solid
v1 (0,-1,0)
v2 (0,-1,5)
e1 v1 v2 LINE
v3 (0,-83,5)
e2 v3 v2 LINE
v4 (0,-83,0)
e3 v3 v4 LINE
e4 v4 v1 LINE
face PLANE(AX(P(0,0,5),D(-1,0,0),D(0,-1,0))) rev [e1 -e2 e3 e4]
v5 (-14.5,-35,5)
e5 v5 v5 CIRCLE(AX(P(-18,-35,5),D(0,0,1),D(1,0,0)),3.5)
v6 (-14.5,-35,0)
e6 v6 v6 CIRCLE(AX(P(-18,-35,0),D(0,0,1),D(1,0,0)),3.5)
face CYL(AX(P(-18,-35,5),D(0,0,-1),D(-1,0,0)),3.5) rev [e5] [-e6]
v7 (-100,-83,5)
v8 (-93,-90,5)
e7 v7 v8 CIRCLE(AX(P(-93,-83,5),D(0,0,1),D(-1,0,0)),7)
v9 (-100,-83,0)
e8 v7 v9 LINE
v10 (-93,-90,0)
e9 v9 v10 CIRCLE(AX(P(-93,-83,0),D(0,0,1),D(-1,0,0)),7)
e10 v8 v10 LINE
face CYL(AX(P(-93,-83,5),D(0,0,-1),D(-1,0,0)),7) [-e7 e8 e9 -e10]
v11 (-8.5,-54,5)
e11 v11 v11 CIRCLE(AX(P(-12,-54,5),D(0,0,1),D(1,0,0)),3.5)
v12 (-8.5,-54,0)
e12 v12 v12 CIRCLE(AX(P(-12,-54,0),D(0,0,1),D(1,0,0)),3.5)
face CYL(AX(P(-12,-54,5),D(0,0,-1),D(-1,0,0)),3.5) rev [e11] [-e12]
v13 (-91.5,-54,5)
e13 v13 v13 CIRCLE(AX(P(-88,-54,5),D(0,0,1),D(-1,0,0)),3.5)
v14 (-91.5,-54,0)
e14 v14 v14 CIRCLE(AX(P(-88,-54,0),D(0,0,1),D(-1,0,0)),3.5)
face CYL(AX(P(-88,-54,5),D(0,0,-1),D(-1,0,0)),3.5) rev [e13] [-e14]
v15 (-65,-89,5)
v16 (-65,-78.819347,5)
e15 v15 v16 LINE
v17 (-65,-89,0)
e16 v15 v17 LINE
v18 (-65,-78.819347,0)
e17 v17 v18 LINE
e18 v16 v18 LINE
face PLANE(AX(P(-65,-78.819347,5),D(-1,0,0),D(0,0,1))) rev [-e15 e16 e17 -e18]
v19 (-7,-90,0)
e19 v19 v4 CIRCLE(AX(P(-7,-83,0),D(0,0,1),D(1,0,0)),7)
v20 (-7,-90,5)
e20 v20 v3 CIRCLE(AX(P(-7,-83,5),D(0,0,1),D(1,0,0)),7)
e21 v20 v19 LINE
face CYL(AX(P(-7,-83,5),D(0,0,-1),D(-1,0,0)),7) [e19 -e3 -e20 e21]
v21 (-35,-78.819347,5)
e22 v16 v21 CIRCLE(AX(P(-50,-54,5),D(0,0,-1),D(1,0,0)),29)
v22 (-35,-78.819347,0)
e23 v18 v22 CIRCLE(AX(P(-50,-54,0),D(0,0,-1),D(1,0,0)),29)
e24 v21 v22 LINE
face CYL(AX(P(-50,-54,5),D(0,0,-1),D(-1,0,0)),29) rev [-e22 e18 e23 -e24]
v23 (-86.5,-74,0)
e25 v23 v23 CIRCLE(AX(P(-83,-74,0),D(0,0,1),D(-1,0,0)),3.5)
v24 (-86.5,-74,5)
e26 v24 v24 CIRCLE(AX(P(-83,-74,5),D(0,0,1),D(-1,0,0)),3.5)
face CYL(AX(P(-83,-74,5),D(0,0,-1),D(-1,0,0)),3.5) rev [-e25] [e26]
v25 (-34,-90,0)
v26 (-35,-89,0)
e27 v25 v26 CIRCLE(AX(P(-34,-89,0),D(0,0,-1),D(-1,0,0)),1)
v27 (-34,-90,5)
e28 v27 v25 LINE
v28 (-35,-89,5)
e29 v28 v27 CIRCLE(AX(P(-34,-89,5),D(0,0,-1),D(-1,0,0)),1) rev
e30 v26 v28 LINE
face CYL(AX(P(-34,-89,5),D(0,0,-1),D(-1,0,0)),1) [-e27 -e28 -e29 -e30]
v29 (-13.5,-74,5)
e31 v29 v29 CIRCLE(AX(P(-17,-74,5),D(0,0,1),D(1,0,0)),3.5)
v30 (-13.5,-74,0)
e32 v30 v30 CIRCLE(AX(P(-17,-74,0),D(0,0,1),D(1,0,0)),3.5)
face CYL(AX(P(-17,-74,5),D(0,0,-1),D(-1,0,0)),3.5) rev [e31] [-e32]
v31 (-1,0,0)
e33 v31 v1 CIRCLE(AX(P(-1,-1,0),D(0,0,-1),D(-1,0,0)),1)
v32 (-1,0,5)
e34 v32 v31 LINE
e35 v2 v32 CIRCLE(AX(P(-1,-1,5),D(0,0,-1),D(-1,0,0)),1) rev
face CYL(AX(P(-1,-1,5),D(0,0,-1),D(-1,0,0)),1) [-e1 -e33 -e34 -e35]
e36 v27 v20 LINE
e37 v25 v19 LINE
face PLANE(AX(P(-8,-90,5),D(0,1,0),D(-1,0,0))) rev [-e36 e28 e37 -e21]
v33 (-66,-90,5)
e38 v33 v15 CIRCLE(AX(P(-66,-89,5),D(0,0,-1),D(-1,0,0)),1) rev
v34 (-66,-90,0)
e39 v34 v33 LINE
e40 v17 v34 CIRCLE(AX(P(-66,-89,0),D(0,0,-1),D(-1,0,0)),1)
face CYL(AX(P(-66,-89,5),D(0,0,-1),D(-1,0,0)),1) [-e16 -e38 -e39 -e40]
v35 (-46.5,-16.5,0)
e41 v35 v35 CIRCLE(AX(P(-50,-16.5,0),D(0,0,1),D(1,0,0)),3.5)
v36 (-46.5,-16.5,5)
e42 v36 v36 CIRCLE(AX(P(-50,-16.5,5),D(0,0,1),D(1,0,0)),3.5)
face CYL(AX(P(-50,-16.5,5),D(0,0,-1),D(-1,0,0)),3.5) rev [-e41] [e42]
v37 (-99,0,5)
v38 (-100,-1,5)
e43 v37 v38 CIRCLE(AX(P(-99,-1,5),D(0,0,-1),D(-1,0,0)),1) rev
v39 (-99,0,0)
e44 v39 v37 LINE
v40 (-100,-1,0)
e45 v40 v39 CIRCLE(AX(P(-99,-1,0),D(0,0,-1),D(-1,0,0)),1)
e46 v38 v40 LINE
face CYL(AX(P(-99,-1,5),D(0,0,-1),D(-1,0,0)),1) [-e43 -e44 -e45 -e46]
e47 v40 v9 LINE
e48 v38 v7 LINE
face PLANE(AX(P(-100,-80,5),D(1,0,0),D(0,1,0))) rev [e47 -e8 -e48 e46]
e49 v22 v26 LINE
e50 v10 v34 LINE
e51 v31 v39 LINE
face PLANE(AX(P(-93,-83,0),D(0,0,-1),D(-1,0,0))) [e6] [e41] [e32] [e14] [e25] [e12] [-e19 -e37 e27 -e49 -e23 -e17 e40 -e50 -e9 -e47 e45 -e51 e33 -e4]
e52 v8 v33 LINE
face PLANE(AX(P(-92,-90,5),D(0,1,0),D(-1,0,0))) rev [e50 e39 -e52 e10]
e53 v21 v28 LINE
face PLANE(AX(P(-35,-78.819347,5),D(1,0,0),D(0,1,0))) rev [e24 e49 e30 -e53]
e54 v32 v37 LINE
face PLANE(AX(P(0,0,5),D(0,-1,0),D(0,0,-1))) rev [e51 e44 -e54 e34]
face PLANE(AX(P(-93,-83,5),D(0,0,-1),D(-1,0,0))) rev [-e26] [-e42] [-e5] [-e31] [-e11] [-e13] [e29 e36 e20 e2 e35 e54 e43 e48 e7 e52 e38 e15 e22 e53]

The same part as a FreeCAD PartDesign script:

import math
import FreeCAD as App
import Part
import Sketcher

V = App.Vector
Q = App.Units.Quantity


def edges_at(feature, points):
    """Names of the edges that pass closest to the given points."""
    edges = feature.Shape.Edges
    near = lambda p: min(range(len(edges)), key=lambda i: edges[i].distToShape(Part.Vertex(*p))[0])
    return sorted({f"Edge{near(p) + 1}" for p in points})

doc = App.newDocument("Part")
body = doc.addObject("PartDesign::Body", "Body")

# Sketch on XY plane
sketch1 = body.newObject("Sketcher::SketchObject", "Sketch")
sketch1.AttachmentSupport = (doc.getObject("XY_Plane"), [""])
sketch1.MapMode = "FlatFace"
sketch1.addGeometry([
    Part.LineSegment(V(0, 0, 0), V(-100, 0, 0)),  # 0
    Part.LineSegment(V(-100, 0, 0), V(-100, -83, 0)),  # 1
    Part.ArcOfCircle(Part.Circle(V(-93, -83, 0), V(0, 0, 1), 7), math.radians(-180), math.radians(-90)),  # 2
    Part.LineSegment(V(-93, -90, 0), V(-65, -90, 0)),  # 3
    Part.LineSegment(V(-65, -90, 0), V(-65, -78.8, 0)),  # 4
    Part.ArcOfCircle(Part.Circle(V(-50, -54, 0), V(0, 0, 1), 29), math.radians(-59), math.radians(239)),  # 5
    Part.LineSegment(V(-35, -78.8, 0), V(-35, -90, 0)),  # 6
    Part.LineSegment(V(-35, -90, 0), V(-7, -90, 0)),  # 7
    Part.ArcOfCircle(Part.Circle(V(-7, -83, 0), V(0, 0, 1), 7), math.radians(-90), math.radians(0)),  # 8
    Part.LineSegment(V(0, -83, 0), V(0, 0, 0)),  # 9
    Part.Circle(V(-83, -74, 0), V(0, 0, 1), 3.5),  # 10
    Part.Circle(V(-88, -54, 0), V(0, 0, 1), 3.5),  # 11
    Part.Circle(V(-17, -74, 0), V(0, 0, 1), 3.5),  # 12
    Part.Circle(V(-12, -54, 0), V(0, 0, 1), 3.5),  # 13
    Part.Circle(V(-18, -35, 0), V(0, 0, 1), 3.5),  # 14
    Part.Circle(V(-50, -16.5, 0), V(0, 0, 1), 3.5),  # 15
], False)
sketch1.addConstraint([
    Sketcher.Constraint("Coincident", 0, 2, 1, 1),
    Sketcher.Constraint("Tangent", 1, 2, 2, 1),
    Sketcher.Constraint("Tangent", 2, 2, 3, 1),
    Sketcher.Constraint("Coincident", 3, 2, 4, 1),
    Sketcher.Constraint("Coincident", 4, 2, 5, 2),
    Sketcher.Constraint("Coincident", 5, 1, 6, 1),
    Sketcher.Constraint("Coincident", 6, 2, 7, 1),
    Sketcher.Constraint("Tangent", 7, 2, 8, 1),
    Sketcher.Constraint("Tangent", 8, 2, 9, 1),
    Sketcher.Constraint("Coincident", 9, 2, 0, 1),
    Sketcher.Constraint("Horizontal", 0),
    Sketcher.Constraint("Vertical", 1),
    Sketcher.Constraint("Horizontal", 3),
    Sketcher.Constraint("Vertical", 4),
    Sketcher.Constraint("Vertical", 6),
    Sketcher.Constraint("Horizontal", 7),
    Sketcher.Constraint("Vertical", 9),
    Sketcher.Constraint("Coincident", 9, 2, -1, 1),
    Sketcher.Constraint("Equal", 2, 8),
    Sketcher.Constraint("Equal", 10, 11),
    Sketcher.Constraint("Equal", 11, 12),
    Sketcher.Constraint("Equal", 12, 13),
    Sketcher.Constraint("Equal", 13, 14),
    Sketcher.Constraint("Equal", 14, 15),
    Sketcher.Constraint("Horizontal", 2, 3, 8, 3),
    Sketcher.Constraint("Horizontal", 5, 3, 11, 3),
    Sketcher.Constraint("Horizontal", 10, 3, 12, 3),
    Sketcher.Constraint("Horizontal", 11, 3, 13, 3),
    Sketcher.Constraint("Horizontal", 4, 2, 5, 1),
    Sketcher.Constraint("Vertical", 5, 3, 15, 3),
    Sketcher.Constraint("Equal", 3, 7),
    Sketcher.Constraint("Diameter", 10, Q("7 mm")),
    Sketcher.Constraint("Radius", 2, Q("7 mm")),
    Sketcher.Constraint("Radius", 5, Q("29 mm")),
    Sketcher.Constraint("DistanceX", 0, 2, 0, 1, Q("100 mm")),
    Sketcher.Constraint("DistanceX", 3, 1, 3, 2, Q("28 mm")),
    Sketcher.Constraint("DistanceY", 1, 2, 1, 1, Q("83 mm")),
    Sketcher.Constraint("DistanceY", 5, 3, -1, 1, Q("54 mm")),
    Sketcher.Constraint("DistanceX", 10, 3, -1, 1, Q("83 mm")),
    Sketcher.Constraint("DistanceY", 10, 3, -1, 1, Q("74 mm")),
    Sketcher.Constraint("DistanceX", 11, 3, -1, 1, Q("88 mm")),
    Sketcher.Constraint("DistanceX", 12, 3, -1, 1, Q("17 mm")),
    Sketcher.Constraint("DistanceX", 13, 3, -1, 1, Q("12 mm")),
    Sketcher.Constraint("DistanceX", 14, 3, -1, 1, Q("18 mm")),
    Sketcher.Constraint("DistanceY", 14, 3, -1, 1, Q("35 mm")),
    Sketcher.Constraint("DistanceY", 15, 3, -1, 1, Q("16.5 mm")),
])
pad1 = body.newObject("PartDesign::Pad", "Pad")
pad1.Profile = sketch1
pad1.Length = 5
doc.recompute()

fillet = body.newObject("PartDesign::Fillet", "Fillet")
fillet.Base = (pad1, edges_at(pad1, [(-100, 0, 2.5)]))
fillet.Radius = 1
doc.recompute()

fillet2 = body.newObject("PartDesign::Fillet", "Fillet001")
fillet2.Base = (fillet, edges_at(fillet, [(0, 0, 2.5)]))
fillet2.Radius = 1
doc.recompute()

fillet3 = body.newObject("PartDesign::Fillet", "Fillet002")
fillet3.Base = (fillet2, edges_at(fillet2, [(-65, -90, 2.5)]))
fillet3.Radius = 1
doc.recompute()

fillet4 = body.newObject("PartDesign::Fillet", "Fillet003")
fillet4.Base = (fillet3, edges_at(fillet3, [(-35, -90, 2.5)]))
fillet4.Radius = 1

doc.recompute()
